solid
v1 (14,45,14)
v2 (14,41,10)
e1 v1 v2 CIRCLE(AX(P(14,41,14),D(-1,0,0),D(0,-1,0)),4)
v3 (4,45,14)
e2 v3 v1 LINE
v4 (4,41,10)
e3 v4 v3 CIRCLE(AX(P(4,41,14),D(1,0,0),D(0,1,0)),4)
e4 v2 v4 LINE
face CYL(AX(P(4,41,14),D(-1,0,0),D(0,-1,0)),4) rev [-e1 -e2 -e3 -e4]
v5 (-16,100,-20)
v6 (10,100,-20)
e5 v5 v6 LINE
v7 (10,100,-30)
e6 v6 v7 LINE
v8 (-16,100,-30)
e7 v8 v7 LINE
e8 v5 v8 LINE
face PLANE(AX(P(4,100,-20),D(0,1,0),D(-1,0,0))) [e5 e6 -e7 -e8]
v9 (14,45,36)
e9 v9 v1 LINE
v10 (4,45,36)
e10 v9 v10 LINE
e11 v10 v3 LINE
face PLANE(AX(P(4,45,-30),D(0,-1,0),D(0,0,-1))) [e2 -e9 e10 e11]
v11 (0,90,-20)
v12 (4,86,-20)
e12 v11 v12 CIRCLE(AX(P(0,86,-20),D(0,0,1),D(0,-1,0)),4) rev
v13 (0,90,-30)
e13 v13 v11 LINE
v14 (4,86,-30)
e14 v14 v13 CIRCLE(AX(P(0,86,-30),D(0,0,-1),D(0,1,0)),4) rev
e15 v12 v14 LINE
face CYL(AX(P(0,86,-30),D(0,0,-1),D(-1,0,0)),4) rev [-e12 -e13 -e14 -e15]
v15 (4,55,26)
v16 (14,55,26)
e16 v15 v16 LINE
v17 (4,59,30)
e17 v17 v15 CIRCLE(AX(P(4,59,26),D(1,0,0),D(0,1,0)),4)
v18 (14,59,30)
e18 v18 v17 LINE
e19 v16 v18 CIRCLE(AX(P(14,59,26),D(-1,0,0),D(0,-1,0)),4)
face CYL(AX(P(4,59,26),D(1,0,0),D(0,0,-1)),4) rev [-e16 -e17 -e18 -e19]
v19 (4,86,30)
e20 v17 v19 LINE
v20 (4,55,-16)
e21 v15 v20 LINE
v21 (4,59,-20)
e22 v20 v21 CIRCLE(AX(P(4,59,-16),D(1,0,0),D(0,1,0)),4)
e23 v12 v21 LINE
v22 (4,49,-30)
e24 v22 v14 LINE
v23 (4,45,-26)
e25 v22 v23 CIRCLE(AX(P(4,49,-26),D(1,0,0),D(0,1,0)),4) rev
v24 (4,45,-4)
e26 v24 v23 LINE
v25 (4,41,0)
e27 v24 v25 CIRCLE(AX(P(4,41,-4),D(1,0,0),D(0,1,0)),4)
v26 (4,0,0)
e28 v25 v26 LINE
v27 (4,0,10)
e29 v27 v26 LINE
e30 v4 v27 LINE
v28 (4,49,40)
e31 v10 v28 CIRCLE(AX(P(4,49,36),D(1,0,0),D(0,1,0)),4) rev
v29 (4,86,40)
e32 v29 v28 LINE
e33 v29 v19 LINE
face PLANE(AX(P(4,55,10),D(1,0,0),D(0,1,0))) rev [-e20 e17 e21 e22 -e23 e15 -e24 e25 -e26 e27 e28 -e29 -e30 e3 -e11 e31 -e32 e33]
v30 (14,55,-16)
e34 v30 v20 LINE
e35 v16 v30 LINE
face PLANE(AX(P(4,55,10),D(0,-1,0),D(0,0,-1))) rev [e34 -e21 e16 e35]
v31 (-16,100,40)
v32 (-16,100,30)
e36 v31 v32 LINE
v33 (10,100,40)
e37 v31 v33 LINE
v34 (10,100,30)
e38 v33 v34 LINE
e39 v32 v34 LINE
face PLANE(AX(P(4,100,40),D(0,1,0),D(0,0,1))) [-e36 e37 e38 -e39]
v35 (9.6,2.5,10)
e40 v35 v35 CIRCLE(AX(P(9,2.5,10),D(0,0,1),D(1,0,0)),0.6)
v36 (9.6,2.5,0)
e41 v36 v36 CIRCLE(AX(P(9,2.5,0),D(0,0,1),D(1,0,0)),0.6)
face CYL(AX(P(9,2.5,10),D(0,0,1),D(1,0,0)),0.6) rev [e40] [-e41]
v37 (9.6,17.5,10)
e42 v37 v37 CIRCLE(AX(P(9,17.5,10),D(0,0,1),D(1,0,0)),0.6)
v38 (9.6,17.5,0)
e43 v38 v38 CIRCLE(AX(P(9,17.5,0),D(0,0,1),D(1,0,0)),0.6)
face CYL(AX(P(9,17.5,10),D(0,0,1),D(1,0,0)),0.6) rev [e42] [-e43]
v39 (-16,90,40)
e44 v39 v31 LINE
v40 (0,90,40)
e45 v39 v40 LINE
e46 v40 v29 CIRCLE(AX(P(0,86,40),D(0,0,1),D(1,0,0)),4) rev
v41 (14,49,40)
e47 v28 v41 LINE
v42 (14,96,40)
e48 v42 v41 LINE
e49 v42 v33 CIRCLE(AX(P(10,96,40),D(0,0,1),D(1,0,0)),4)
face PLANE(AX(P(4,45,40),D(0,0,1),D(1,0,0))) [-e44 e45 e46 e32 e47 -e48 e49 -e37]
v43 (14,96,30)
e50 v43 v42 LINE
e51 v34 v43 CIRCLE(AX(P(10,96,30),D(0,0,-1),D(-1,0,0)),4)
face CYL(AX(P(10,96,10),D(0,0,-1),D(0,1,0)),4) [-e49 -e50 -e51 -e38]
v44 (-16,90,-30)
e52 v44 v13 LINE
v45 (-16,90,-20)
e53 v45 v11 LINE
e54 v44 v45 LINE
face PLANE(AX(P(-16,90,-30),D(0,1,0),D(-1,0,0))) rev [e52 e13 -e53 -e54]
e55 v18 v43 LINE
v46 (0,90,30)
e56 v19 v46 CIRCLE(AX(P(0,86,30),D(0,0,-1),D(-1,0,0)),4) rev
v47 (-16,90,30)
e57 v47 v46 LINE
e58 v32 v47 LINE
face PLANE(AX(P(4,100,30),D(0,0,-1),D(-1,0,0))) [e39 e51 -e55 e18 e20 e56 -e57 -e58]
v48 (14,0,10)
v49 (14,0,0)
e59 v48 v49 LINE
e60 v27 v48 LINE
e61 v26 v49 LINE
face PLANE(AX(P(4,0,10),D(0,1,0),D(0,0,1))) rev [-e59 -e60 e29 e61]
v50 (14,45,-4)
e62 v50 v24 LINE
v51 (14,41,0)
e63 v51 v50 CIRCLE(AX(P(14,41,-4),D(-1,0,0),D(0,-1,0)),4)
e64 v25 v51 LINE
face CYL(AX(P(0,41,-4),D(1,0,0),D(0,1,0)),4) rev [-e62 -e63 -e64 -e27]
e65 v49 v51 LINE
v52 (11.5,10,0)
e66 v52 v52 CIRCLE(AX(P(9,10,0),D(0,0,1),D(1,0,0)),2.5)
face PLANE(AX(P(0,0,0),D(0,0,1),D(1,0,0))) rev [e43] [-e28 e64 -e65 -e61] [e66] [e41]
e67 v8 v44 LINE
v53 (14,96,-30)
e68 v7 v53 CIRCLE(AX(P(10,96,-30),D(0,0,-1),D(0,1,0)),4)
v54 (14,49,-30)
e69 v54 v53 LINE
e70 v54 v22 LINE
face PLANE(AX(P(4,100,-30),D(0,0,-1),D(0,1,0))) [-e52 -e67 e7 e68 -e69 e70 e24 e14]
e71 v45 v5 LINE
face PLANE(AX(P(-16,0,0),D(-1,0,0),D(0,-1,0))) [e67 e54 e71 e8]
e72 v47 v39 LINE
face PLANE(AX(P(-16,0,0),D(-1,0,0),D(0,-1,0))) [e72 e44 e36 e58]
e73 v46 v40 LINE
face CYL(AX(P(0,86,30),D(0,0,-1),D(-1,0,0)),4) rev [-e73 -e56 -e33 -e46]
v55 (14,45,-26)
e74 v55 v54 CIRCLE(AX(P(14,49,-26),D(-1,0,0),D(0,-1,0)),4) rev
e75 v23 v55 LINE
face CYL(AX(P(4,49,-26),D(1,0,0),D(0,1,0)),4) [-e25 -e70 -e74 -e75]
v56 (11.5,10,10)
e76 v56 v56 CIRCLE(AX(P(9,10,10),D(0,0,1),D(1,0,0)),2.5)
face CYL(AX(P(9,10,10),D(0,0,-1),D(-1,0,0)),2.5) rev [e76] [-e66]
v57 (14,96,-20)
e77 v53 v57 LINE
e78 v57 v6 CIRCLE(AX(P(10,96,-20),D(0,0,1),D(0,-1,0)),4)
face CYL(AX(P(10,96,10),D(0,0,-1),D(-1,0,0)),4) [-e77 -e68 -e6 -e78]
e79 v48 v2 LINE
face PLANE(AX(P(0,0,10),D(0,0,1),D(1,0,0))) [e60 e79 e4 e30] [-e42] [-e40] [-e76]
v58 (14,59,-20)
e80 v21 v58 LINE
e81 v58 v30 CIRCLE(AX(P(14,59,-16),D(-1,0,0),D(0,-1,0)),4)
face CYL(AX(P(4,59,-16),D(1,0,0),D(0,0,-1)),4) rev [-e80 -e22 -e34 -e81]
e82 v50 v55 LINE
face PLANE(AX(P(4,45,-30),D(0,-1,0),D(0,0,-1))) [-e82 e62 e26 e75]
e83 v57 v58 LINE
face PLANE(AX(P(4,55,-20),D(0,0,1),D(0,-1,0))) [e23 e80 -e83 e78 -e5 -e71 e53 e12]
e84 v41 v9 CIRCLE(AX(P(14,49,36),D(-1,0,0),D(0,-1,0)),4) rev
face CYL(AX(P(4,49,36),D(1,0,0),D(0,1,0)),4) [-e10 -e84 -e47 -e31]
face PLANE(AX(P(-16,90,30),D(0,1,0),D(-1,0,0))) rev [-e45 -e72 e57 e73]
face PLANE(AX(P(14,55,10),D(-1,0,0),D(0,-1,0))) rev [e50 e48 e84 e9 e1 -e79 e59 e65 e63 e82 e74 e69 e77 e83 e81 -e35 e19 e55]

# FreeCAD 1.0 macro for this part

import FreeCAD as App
import Part
import Sketcher


def edges_at(feature, points):
    """Names of the edges that pass closest to the given points."""
    edges = feature.Shape.Edges
    near = lambda p: min(range(len(edges)), key=lambda i: edges[i].distToShape(Part.Vertex(*p))[0])
    return sorted({f"Edge{near(p) + 1}" for p in points})

doc = App.newDocument("Part")
body = doc.addObject("PartDesign::Body", "Body")

# Sketch on XY plane
sketch1 = doc.addObject("Sketcher::SketchObject", "Sketch")
body.addObject(sketch1)
sketch1.AttachmentSupport = (doc.XY_Plane, [""])
sketch1.MapMode = "FlatFace"
sketch1.addGeometry([
    Part.LineSegment(App.Vector(4, 55, 0), App.Vector(4, 0, 0)),  # 0
    Part.LineSegment(App.Vector(4, 0, 0), App.Vector(14, 0, 0)),  # 1
    Part.LineSegment(App.Vector(14, 0, 0), App.Vector(14, 55, 0)),  # 2
    Part.LineSegment(App.Vector(14, 55, 0), App.Vector(4, 55, 0)),  # 3
    Part.Circle(App.Vector(9, 2.5, 0), App.Vector(0, 0, 1), 0.5),  # 4
    Part.Circle(App.Vector(9, 10, 0), App.Vector(0, 0, 1), 2.5),  # 5
    Part.Circle(App.Vector(9, 17.5, 0), App.Vector(0, 0, 1), 0.5),  # 6
], False)
sketch1.addConstraint([
    Sketcher.Constraint("Coincident", 0, 2, 1, 1),
    Sketcher.Constraint("Coincident", 1, 2, 2, 1),
    Sketcher.Constraint("Coincident", 2, 2, 3, 1),
    Sketcher.Constraint("Coincident", 3, 2, 0, 1),
    Sketcher.Constraint("Vertical", 0),
    Sketcher.Constraint("Horizontal", 1),
    Sketcher.Constraint("Vertical", 2),
    Sketcher.Constraint("Horizontal", 3),
    Sketcher.Constraint("Equal", 4, 6),
    Sketcher.Constraint("PointOnObject", 0, 2, -1),
    Sketcher.Constraint("Vertical", 4, 3, 5, 3),
    Sketcher.Constraint("Vertical", 5, 3, 6, 3),
    Sketcher.Constraint("Diameter", 4, 1.0),
    Sketcher.Constraint("Diameter", 5, 5.0),
    Sketcher.Constraint("DistanceX", 1, 1, 1, 2, 10.0),
    Sketcher.Constraint("DistanceY", 0, 2, 0, 1, 55.0),
    Sketcher.Constraint("DistanceX", -1, 1, 4, 3, 9.0),
    Sketcher.Constraint("DistanceY", -1, 1, 5, 3, 10.0),
    Sketcher.Constraint("DistanceX", -1, 1, 0, 2, 4.0),
    Sketcher.Constraint("DistanceY", 4, 3, 6, 3, 15.0),
    Sketcher.Constraint("DistanceY", -1, 1, 4, 3, 2.5),
])
pad1 = doc.addObject("PartDesign::Pad", "Pad")
body.addObject(pad1)
pad1.Profile = sketch1
pad1.Length = 10

# Sketch on YZ plane
sketch2 = doc.addObject("Sketcher::SketchObject", "Sketch001")
body.addObject(sketch2)
sketch2.AttachmentSupport = (doc.YZ_Plane, [""])
sketch2.MapMode = "FlatFace"
sketch2.AttachmentOffset = App.Placement(App.Vector(0, 0, 14), App.Rotation())
sketch2.addGeometry([
    Part.LineSegment(App.Vector(55, -20, 0), App.Vector(55, 30, 0)),  # 0
    Part.LineSegment(App.Vector(55, 30, 0), App.Vector(100, 30, 0)),  # 1
    Part.LineSegment(App.Vector(100, 30, 0), App.Vector(100, 40, 0)),  # 2
    Part.LineSegment(App.Vector(100, 40, 0), App.Vector(45, 40, 0)),  # 3
    Part.LineSegment(App.Vector(45, 40, 0), App.Vector(45, -30, 0)),  # 4
    Part.LineSegment(App.Vector(45, -30, 0), App.Vector(100, -30, 0)),  # 5
    Part.LineSegment(App.Vector(100, -30, 0), App.Vector(100, -20, 0)),  # 6
    Part.LineSegment(App.Vector(100, -20, 0), App.Vector(55, -20, 0)),  # 7
], False)
sketch2.addConstraint([
    Sketcher.Constraint("Coincident", 0, 2, 1, 1),
    Sketcher.Constraint("Coincident", 1, 2, 2, 1),
    Sketcher.Constraint("Coincident", 2, 2, 3, 1),
    Sketcher.Constraint("Coincident", 3, 2, 4, 1),
    Sketcher.Constraint("Coincident", 4, 2, 5, 1),
    Sketcher.Constraint("Coincident", 5, 2, 6, 1),
    Sketcher.Constraint("Coincident", 6, 2, 7, 1),
    Sketcher.Constraint("Coincident", 7, 2, 0, 1),
    Sketcher.Constraint("Vertical", 0),
    Sketcher.Constraint("Horizontal", 1),
    Sketcher.Constraint("Vertical", 2),
    Sketcher.Constraint("Horizontal", 3),
    Sketcher.Constraint("Vertical", 4),
    Sketcher.Constraint("Horizontal", 5),
    Sketcher.Constraint("Vertical", 6),
    Sketcher.Constraint("Horizontal", 7),
    Sketcher.Constraint("Symmetric", 1, 2, 5, 2, -1),
    Sketcher.Constraint("Equal", 2, 6),
    Sketcher.Constraint("DistanceX", 1, 1, 1, 2, 45.0),
    Sketcher.Constraint("DistanceX", 3, 2, 3, 1, 55.0),
    Sketcher.Constraint("DistanceY", 0, 1, 0, 2, 50.0),
    Sketcher.Constraint("DistanceY", 2, 1, 2, 2, 10.0),
    Sketcher.Constraint("DistanceX", -1, 1, 0, 2, 55.0),
])
pad2 = doc.addObject("PartDesign::Pad", "Pad001")
body.addObject(pad2)
pad2.Profile = sketch2
pad2.Length = 10
pad2.Reversed = True

# Sketch on YZ plane
sketch3 = doc.addObject("Sketcher::SketchObject", "Sketch002")
body.addObject(sketch3)
sketch3.AttachmentSupport = (doc.YZ_Plane, [""])
sketch3.MapMode = "FlatFace"
sketch3.AttachmentOffset = App.Placement(App.Vector(0, 0, 4), App.Rotation())
sketch3.addGeometry([
    Part.LineSegment(App.Vector(100, -30, 0), App.Vector(90, -30, 0)),  # 0
    Part.LineSegment(App.Vector(90, -30, 0), App.Vector(90, -20, 0)),  # 1
    Part.LineSegment(App.Vector(90, -20, 0), App.Vector(100, -20, 0)),  # 2
    Part.LineSegment(App.Vector(100, -20, 0), App.Vector(100, -30, 0)),  # 3
    Part.LineSegment(App.Vector(100, 30, 0), App.Vector(90, 30, 0)),  # 4
    Part.LineSegment(App.Vector(90, 30, 0), App.Vector(90, 40, 0)),  # 5
    Part.LineSegment(App.Vector(90, 40, 0), App.Vector(100, 40, 0)),  # 6
    Part.LineSegment(App.Vector(100, 40, 0), App.Vector(100, 30, 0)),  # 7
], False)
sketch3.addConstraint([
    Sketcher.Constraint("Coincident", 0, 2, 1, 1),
    Sketcher.Constraint("Coincident", 1, 2, 2, 1),
    Sketcher.Constraint("Coincident", 2, 2, 3, 1),
    Sketcher.Constraint("Coincident", 3, 2, 0, 1),
    Sketcher.Constraint("Coincident", 4, 2, 5, 1),
    Sketcher.Constraint("Coincident", 5, 2, 6, 1),
    Sketcher.Constraint("Coincident", 6, 2, 7, 1),
    Sketcher.Constraint("Coincident", 7, 2, 4, 1),
    Sketcher.Constraint("Horizontal", 0),
    Sketcher.Constraint("Vertical", 1),
    Sketcher.Constraint("Horizontal", 2),
    Sketcher.Constraint("Vertical", 3),
    Sketcher.Constraint("Horizontal", 4),
    Sketcher.Constraint("Vertical", 5),
    Sketcher.Constraint("Horizontal", 6),
    Sketcher.Constraint("Vertical", 7),
    Sketcher.Constraint("Symmetric", 0, 2, 4, 2, -1),
    Sketcher.Constraint("Vertical", 3, 2, 6, 2),
    Sketcher.Constraint("Equal", 6, 1),
    Sketcher.Constraint("Equal", 3, 5),
    Sketcher.Constraint("DistanceX", 0, 2, 0, 1, 10.0),
    Sketcher.Constraint("DistanceX", -1, 1, 0, 2, 90.0),
    Sketcher.Constraint("DistanceY", 0, 2, -1, 1, 30.0),
])
pad3 = doc.addObject("PartDesign::Pad", "Pad002")
body.addObject(pad3)
pad3.Profile = sketch3
pad3.Length = 20
pad3.Reversed = True
doc.recompute()

fillet = doc.addObject("PartDesign::Fillet", "Fillet")
body.addObject(fillet)
fillet.Base = (pad3, edges_at(pad3, [
    (9, 45, 0),
    (9, 45, -30),
    (14, 100, -25),
    (9, 55, -20),
    (9, 45, 10),
    (9, 45, 40),
    (9, 55, 30),
    (14, 100, 35),
    (4, 90, -25),
    (4, 90, 35),
]))
fillet.Radius = 4

# Sketch on XY plane
sketch4 = doc.addObject("Sketcher::SketchObject", "Sketch003")
body.addObject(sketch4)
sketch4.AttachmentSupport = (doc.XY_Plane, [""])
sketch4.MapMode = "FlatFace"
sketch4.AttachmentOffset = App.Placement(App.Vector(0, 0, 10), App.Rotation())
sketch4.addGeometry([
    Part.Circle(App.Vector(9, 17.5, 0), App.Vector(0, 0, 1), 0.6),
    Part.Circle(App.Vector(9, 2.5, 0), App.Vector(0, 0, 1), 0.6),
], False)
sketch4.addConstraint([
    Sketcher.Constraint("Equal", 0, 1),
    Sketcher.Constraint("Vertical", 0, 3, 1, 3),
    Sketcher.Constraint("Diameter", 0, 1.2),
    Sketcher.Constraint("DistanceX", -1, 1, 0, 3, 9.0),
    Sketcher.Constraint("DistanceY", 1, 3, 0, 3, 15.0),
    Sketcher.Constraint("DistanceY", -1, 1, 0, 3, 17.5),
])
doc.recompute()
hole = doc.addObject("PartDesign::Hole", "Hole")
body.addObject(hole)
hole.Profile = sketch4
hole.ThreadType = "None"
hole.Diameter = 1.2
hole.DepthType = "ThroughAll"

doc.recompute()
